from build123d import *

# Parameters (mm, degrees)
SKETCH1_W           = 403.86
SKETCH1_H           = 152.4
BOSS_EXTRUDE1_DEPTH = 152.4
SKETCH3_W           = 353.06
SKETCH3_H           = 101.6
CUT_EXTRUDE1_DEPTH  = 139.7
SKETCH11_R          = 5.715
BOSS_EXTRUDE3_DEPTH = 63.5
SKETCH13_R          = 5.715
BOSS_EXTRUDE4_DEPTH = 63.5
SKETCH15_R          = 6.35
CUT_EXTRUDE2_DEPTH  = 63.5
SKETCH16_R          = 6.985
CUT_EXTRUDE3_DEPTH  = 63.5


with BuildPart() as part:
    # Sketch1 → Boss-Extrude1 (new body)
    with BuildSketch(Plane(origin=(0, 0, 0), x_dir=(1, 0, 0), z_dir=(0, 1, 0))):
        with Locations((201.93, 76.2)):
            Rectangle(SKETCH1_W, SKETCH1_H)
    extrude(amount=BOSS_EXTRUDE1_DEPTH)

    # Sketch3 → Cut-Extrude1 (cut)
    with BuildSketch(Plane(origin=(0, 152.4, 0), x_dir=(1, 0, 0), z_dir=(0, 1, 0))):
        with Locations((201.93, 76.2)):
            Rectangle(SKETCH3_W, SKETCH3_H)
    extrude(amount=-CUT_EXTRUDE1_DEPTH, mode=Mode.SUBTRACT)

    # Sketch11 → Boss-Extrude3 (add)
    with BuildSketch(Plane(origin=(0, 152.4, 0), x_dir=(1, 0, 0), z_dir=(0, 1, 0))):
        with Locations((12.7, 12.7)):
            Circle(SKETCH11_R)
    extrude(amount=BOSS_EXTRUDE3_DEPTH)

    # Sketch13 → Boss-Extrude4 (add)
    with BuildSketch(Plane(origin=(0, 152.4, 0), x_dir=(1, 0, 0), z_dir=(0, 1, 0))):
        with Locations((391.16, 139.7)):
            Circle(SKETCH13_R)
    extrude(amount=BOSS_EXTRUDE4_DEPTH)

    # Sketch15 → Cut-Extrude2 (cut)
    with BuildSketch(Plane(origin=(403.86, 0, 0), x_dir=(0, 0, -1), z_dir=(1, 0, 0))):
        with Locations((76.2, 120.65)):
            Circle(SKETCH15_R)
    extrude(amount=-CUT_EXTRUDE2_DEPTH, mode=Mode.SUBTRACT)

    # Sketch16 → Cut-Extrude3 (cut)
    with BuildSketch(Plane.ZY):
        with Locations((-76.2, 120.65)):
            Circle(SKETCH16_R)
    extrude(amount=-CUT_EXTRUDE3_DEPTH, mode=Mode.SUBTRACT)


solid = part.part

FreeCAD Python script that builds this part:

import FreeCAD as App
import Part
import Sketcher

V = App.Vector
Q = App.Units.Quantity


def add_polygon(sketch, points):
    """Adds a closed chain of lines whose ends are joined by coincident constraints."""
    first, n = sketch.GeometryCount, len(points)
    for a, b in zip(points, points[1:] + points[:1]):
        sketch.addGeometry(Part.LineSegment(App.Vector(*a, 0), App.Vector(*b, 0)), False)
    for i in range(n):
        sketch.addConstraint(Sketcher.Constraint("Coincident", first + i, 2, first + (i + 1) % n, 1))

doc = App.newDocument("Part")
body = doc.addObject("PartDesign::Body", "Body")

sketch1 = doc.addObject("Sketcher::SketchObject", "Sketch")
body.addObject(sketch1)
sketch1.AttachmentSupport = (doc.XZ_Plane, [""])
sketch1.MapMode = "FlatFace"
add_polygon(sketch1, [(0, -152.4), (0, 0), (403.86, 0), (403.86, -152.4)])
sketch1.addConstraint([
    Sketcher.Constraint("Vertical", 0),
    Sketcher.Constraint("Horizontal", 1),
    Sketcher.Constraint("Vertical", 2),
    Sketcher.Constraint("Horizontal", 3),
    Sketcher.Constraint("Coincident", 0, 2, -1, 1),
    Sketcher.Constraint("DistanceY", 0, 1, 0, 2, Q("6 in")),
    Sketcher.Constraint("DistanceX", 1, 1, 1, 2, Q("15.9 in")),
])
pad1 = doc.addObject("PartDesign::Pad", "Pad")
body.addObject(pad1)
pad1.Profile = sketch1
pad1.Length = Q("6 in")
pad1.Reversed = True

sketch2 = doc.addObject("Sketcher::SketchObject", "Sketch001")
body.addObject(sketch2)
sketch2.AttachmentSupport = (doc.XZ_Plane, [""])
sketch2.MapMode = "FlatFace"
sketch2.AttachmentOffset = App.Placement(V(0, 0, -6 * 25.4), App.Rotation())
add_polygon(sketch2, [(25.4, -127), (25.4, -25.4), (378.46, -25.4), (378.46, -127)])
sketch2.addConstraint([
    Sketcher.Constraint("Vertical", 0),
    Sketcher.Constraint("Horizontal", 1),
    Sketcher.Constraint("Vertical", 2),
    Sketcher.Constraint("Horizontal", 3),
    Sketcher.Constraint("DistanceY", 0, 1, 0, 2, Q("4 in")),
    Sketcher.Constraint("DistanceX", 1, 1, 1, 2, Q("13.9 in")),
    Sketcher.Constraint("DistanceX", -1, 1, 0, 2, Q("1 in")),
    Sketcher.Constraint("DistanceY", 0, 2, -1, 1, Q("1 in")),
])
pocket1 = doc.addObject("PartDesign::Pocket", "Pocket")
body.addObject(pocket1)
pocket1.Profile = sketch2
pocket1.Length = Q("5.5 in")
pocket1.Reversed = True

sketch3 = doc.addObject("Sketcher::SketchObject", "Sketch002")
body.addObject(sketch3)
sketch3.AttachmentSupport = (doc.XZ_Plane, [""])
sketch3.MapMode = "FlatFace"
sketch3.AttachmentOffset = App.Placement(V(0, 0, -6 * 25.4), App.Rotation())
sketch3.addGeometry(Part.Circle(V(12.7, -12.7, 0), V(0, 0, 1), 5.715), False)
sketch3.addConstraint([
    Sketcher.Constraint("Diameter", 0, Q("0.45 in")),
    Sketcher.Constraint("DistanceX", -1, 1, 0, 3, Q("0.5 in")),
    Sketcher.Constraint("DistanceY", 0, 3, -1, 1, Q("0.5 in")),
])
pad2 = doc.addObject("PartDesign::Pad", "Pad001")
body.addObject(pad2)
pad2.Profile = sketch3
pad2.Length = Q("2.5 in")
pad2.Reversed = True

sketch4 = doc.addObject("Sketcher::SketchObject", "Sketch003")
body.addObject(sketch4)
sketch4.AttachmentSupport = (doc.XZ_Plane, [""])
sketch4.MapMode = "FlatFace"
sketch4.AttachmentOffset = App.Placement(V(0, 0, -6 * 25.4), App.Rotation())
sketch4.addGeometry(Part.Circle(V(391.16, -139.7, 0), V(0, 0, 1), 5.715), False)
sketch4.addConstraint([
    Sketcher.Constraint("Diameter", 0, Q("0.45 in")),
    Sketcher.Constraint("DistanceX", -1, 1, 0, 3, Q("15.4 in")),
    Sketcher.Constraint("DistanceY", 0, 3, -1, 1, Q("5.5 in")),
])
pad3 = doc.addObject("PartDesign::Pad", "Pad002")
body.addObject(pad3)
pad3.Profile = sketch4
pad3.Length = Q("2.5 in")
pad3.Reversed = True

sketch5 = doc.addObject("Sketcher::SketchObject", "Sketch004")
body.addObject(sketch5)
sketch5.AttachmentSupport = (doc.YZ_Plane, [""])
sketch5.MapMode = "FlatFace"
sketch5.AttachmentOffset = App.Placement(V(0, 0, 15.9 * 25.4), App.Rotation())
sketch5.addGeometry(Part.Circle(V(120.65, -76.2, 0), V(0, 0, 1), 6.35), False)
sketch5.addConstraint([
    Sketcher.Constraint("Diameter", 0, Q("0.5 in")),
    Sketcher.Constraint("DistanceY", 0, 3, -1, 1, Q("3 in")),
    Sketcher.Constraint("DistanceX", -1, 1, 0, 3, Q("4.75 in")),
])
pocket2 = doc.addObject("PartDesign::Pocket", "Pocket001")
body.addObject(pocket2)
pocket2.Profile = sketch5
pocket2.Length = Q("2.5 in")

sketch6 = doc.addObject("Sketcher::SketchObject", "Sketch005")
body.addObject(sketch6)
sketch6.AttachmentSupport = (doc.YZ_Plane, [""])
sketch6.MapMode = "FlatFace"
sketch6.addGeometry(Part.Circle(V(120.65, -76.2, 0), V(0, 0, 1), 6.985), False)
sketch6.addConstraint([
    Sketcher.Constraint("Diameter", 0, Q("0.55 in")),
    Sketcher.Constraint("DistanceY", 0, 3, -1, 1, Q("3 in")),
    Sketcher.Constraint("DistanceX", -1, 1, 0, 3, Q("4.75 in")),
])
pocket3 = doc.addObject("PartDesign::Pocket", "Pocket002")
body.addObject(pocket3)
pocket3.Profile = sketch6
pocket3.Length = Q("2.5 in")
pocket3.Reversed = True

doc.recompute()
